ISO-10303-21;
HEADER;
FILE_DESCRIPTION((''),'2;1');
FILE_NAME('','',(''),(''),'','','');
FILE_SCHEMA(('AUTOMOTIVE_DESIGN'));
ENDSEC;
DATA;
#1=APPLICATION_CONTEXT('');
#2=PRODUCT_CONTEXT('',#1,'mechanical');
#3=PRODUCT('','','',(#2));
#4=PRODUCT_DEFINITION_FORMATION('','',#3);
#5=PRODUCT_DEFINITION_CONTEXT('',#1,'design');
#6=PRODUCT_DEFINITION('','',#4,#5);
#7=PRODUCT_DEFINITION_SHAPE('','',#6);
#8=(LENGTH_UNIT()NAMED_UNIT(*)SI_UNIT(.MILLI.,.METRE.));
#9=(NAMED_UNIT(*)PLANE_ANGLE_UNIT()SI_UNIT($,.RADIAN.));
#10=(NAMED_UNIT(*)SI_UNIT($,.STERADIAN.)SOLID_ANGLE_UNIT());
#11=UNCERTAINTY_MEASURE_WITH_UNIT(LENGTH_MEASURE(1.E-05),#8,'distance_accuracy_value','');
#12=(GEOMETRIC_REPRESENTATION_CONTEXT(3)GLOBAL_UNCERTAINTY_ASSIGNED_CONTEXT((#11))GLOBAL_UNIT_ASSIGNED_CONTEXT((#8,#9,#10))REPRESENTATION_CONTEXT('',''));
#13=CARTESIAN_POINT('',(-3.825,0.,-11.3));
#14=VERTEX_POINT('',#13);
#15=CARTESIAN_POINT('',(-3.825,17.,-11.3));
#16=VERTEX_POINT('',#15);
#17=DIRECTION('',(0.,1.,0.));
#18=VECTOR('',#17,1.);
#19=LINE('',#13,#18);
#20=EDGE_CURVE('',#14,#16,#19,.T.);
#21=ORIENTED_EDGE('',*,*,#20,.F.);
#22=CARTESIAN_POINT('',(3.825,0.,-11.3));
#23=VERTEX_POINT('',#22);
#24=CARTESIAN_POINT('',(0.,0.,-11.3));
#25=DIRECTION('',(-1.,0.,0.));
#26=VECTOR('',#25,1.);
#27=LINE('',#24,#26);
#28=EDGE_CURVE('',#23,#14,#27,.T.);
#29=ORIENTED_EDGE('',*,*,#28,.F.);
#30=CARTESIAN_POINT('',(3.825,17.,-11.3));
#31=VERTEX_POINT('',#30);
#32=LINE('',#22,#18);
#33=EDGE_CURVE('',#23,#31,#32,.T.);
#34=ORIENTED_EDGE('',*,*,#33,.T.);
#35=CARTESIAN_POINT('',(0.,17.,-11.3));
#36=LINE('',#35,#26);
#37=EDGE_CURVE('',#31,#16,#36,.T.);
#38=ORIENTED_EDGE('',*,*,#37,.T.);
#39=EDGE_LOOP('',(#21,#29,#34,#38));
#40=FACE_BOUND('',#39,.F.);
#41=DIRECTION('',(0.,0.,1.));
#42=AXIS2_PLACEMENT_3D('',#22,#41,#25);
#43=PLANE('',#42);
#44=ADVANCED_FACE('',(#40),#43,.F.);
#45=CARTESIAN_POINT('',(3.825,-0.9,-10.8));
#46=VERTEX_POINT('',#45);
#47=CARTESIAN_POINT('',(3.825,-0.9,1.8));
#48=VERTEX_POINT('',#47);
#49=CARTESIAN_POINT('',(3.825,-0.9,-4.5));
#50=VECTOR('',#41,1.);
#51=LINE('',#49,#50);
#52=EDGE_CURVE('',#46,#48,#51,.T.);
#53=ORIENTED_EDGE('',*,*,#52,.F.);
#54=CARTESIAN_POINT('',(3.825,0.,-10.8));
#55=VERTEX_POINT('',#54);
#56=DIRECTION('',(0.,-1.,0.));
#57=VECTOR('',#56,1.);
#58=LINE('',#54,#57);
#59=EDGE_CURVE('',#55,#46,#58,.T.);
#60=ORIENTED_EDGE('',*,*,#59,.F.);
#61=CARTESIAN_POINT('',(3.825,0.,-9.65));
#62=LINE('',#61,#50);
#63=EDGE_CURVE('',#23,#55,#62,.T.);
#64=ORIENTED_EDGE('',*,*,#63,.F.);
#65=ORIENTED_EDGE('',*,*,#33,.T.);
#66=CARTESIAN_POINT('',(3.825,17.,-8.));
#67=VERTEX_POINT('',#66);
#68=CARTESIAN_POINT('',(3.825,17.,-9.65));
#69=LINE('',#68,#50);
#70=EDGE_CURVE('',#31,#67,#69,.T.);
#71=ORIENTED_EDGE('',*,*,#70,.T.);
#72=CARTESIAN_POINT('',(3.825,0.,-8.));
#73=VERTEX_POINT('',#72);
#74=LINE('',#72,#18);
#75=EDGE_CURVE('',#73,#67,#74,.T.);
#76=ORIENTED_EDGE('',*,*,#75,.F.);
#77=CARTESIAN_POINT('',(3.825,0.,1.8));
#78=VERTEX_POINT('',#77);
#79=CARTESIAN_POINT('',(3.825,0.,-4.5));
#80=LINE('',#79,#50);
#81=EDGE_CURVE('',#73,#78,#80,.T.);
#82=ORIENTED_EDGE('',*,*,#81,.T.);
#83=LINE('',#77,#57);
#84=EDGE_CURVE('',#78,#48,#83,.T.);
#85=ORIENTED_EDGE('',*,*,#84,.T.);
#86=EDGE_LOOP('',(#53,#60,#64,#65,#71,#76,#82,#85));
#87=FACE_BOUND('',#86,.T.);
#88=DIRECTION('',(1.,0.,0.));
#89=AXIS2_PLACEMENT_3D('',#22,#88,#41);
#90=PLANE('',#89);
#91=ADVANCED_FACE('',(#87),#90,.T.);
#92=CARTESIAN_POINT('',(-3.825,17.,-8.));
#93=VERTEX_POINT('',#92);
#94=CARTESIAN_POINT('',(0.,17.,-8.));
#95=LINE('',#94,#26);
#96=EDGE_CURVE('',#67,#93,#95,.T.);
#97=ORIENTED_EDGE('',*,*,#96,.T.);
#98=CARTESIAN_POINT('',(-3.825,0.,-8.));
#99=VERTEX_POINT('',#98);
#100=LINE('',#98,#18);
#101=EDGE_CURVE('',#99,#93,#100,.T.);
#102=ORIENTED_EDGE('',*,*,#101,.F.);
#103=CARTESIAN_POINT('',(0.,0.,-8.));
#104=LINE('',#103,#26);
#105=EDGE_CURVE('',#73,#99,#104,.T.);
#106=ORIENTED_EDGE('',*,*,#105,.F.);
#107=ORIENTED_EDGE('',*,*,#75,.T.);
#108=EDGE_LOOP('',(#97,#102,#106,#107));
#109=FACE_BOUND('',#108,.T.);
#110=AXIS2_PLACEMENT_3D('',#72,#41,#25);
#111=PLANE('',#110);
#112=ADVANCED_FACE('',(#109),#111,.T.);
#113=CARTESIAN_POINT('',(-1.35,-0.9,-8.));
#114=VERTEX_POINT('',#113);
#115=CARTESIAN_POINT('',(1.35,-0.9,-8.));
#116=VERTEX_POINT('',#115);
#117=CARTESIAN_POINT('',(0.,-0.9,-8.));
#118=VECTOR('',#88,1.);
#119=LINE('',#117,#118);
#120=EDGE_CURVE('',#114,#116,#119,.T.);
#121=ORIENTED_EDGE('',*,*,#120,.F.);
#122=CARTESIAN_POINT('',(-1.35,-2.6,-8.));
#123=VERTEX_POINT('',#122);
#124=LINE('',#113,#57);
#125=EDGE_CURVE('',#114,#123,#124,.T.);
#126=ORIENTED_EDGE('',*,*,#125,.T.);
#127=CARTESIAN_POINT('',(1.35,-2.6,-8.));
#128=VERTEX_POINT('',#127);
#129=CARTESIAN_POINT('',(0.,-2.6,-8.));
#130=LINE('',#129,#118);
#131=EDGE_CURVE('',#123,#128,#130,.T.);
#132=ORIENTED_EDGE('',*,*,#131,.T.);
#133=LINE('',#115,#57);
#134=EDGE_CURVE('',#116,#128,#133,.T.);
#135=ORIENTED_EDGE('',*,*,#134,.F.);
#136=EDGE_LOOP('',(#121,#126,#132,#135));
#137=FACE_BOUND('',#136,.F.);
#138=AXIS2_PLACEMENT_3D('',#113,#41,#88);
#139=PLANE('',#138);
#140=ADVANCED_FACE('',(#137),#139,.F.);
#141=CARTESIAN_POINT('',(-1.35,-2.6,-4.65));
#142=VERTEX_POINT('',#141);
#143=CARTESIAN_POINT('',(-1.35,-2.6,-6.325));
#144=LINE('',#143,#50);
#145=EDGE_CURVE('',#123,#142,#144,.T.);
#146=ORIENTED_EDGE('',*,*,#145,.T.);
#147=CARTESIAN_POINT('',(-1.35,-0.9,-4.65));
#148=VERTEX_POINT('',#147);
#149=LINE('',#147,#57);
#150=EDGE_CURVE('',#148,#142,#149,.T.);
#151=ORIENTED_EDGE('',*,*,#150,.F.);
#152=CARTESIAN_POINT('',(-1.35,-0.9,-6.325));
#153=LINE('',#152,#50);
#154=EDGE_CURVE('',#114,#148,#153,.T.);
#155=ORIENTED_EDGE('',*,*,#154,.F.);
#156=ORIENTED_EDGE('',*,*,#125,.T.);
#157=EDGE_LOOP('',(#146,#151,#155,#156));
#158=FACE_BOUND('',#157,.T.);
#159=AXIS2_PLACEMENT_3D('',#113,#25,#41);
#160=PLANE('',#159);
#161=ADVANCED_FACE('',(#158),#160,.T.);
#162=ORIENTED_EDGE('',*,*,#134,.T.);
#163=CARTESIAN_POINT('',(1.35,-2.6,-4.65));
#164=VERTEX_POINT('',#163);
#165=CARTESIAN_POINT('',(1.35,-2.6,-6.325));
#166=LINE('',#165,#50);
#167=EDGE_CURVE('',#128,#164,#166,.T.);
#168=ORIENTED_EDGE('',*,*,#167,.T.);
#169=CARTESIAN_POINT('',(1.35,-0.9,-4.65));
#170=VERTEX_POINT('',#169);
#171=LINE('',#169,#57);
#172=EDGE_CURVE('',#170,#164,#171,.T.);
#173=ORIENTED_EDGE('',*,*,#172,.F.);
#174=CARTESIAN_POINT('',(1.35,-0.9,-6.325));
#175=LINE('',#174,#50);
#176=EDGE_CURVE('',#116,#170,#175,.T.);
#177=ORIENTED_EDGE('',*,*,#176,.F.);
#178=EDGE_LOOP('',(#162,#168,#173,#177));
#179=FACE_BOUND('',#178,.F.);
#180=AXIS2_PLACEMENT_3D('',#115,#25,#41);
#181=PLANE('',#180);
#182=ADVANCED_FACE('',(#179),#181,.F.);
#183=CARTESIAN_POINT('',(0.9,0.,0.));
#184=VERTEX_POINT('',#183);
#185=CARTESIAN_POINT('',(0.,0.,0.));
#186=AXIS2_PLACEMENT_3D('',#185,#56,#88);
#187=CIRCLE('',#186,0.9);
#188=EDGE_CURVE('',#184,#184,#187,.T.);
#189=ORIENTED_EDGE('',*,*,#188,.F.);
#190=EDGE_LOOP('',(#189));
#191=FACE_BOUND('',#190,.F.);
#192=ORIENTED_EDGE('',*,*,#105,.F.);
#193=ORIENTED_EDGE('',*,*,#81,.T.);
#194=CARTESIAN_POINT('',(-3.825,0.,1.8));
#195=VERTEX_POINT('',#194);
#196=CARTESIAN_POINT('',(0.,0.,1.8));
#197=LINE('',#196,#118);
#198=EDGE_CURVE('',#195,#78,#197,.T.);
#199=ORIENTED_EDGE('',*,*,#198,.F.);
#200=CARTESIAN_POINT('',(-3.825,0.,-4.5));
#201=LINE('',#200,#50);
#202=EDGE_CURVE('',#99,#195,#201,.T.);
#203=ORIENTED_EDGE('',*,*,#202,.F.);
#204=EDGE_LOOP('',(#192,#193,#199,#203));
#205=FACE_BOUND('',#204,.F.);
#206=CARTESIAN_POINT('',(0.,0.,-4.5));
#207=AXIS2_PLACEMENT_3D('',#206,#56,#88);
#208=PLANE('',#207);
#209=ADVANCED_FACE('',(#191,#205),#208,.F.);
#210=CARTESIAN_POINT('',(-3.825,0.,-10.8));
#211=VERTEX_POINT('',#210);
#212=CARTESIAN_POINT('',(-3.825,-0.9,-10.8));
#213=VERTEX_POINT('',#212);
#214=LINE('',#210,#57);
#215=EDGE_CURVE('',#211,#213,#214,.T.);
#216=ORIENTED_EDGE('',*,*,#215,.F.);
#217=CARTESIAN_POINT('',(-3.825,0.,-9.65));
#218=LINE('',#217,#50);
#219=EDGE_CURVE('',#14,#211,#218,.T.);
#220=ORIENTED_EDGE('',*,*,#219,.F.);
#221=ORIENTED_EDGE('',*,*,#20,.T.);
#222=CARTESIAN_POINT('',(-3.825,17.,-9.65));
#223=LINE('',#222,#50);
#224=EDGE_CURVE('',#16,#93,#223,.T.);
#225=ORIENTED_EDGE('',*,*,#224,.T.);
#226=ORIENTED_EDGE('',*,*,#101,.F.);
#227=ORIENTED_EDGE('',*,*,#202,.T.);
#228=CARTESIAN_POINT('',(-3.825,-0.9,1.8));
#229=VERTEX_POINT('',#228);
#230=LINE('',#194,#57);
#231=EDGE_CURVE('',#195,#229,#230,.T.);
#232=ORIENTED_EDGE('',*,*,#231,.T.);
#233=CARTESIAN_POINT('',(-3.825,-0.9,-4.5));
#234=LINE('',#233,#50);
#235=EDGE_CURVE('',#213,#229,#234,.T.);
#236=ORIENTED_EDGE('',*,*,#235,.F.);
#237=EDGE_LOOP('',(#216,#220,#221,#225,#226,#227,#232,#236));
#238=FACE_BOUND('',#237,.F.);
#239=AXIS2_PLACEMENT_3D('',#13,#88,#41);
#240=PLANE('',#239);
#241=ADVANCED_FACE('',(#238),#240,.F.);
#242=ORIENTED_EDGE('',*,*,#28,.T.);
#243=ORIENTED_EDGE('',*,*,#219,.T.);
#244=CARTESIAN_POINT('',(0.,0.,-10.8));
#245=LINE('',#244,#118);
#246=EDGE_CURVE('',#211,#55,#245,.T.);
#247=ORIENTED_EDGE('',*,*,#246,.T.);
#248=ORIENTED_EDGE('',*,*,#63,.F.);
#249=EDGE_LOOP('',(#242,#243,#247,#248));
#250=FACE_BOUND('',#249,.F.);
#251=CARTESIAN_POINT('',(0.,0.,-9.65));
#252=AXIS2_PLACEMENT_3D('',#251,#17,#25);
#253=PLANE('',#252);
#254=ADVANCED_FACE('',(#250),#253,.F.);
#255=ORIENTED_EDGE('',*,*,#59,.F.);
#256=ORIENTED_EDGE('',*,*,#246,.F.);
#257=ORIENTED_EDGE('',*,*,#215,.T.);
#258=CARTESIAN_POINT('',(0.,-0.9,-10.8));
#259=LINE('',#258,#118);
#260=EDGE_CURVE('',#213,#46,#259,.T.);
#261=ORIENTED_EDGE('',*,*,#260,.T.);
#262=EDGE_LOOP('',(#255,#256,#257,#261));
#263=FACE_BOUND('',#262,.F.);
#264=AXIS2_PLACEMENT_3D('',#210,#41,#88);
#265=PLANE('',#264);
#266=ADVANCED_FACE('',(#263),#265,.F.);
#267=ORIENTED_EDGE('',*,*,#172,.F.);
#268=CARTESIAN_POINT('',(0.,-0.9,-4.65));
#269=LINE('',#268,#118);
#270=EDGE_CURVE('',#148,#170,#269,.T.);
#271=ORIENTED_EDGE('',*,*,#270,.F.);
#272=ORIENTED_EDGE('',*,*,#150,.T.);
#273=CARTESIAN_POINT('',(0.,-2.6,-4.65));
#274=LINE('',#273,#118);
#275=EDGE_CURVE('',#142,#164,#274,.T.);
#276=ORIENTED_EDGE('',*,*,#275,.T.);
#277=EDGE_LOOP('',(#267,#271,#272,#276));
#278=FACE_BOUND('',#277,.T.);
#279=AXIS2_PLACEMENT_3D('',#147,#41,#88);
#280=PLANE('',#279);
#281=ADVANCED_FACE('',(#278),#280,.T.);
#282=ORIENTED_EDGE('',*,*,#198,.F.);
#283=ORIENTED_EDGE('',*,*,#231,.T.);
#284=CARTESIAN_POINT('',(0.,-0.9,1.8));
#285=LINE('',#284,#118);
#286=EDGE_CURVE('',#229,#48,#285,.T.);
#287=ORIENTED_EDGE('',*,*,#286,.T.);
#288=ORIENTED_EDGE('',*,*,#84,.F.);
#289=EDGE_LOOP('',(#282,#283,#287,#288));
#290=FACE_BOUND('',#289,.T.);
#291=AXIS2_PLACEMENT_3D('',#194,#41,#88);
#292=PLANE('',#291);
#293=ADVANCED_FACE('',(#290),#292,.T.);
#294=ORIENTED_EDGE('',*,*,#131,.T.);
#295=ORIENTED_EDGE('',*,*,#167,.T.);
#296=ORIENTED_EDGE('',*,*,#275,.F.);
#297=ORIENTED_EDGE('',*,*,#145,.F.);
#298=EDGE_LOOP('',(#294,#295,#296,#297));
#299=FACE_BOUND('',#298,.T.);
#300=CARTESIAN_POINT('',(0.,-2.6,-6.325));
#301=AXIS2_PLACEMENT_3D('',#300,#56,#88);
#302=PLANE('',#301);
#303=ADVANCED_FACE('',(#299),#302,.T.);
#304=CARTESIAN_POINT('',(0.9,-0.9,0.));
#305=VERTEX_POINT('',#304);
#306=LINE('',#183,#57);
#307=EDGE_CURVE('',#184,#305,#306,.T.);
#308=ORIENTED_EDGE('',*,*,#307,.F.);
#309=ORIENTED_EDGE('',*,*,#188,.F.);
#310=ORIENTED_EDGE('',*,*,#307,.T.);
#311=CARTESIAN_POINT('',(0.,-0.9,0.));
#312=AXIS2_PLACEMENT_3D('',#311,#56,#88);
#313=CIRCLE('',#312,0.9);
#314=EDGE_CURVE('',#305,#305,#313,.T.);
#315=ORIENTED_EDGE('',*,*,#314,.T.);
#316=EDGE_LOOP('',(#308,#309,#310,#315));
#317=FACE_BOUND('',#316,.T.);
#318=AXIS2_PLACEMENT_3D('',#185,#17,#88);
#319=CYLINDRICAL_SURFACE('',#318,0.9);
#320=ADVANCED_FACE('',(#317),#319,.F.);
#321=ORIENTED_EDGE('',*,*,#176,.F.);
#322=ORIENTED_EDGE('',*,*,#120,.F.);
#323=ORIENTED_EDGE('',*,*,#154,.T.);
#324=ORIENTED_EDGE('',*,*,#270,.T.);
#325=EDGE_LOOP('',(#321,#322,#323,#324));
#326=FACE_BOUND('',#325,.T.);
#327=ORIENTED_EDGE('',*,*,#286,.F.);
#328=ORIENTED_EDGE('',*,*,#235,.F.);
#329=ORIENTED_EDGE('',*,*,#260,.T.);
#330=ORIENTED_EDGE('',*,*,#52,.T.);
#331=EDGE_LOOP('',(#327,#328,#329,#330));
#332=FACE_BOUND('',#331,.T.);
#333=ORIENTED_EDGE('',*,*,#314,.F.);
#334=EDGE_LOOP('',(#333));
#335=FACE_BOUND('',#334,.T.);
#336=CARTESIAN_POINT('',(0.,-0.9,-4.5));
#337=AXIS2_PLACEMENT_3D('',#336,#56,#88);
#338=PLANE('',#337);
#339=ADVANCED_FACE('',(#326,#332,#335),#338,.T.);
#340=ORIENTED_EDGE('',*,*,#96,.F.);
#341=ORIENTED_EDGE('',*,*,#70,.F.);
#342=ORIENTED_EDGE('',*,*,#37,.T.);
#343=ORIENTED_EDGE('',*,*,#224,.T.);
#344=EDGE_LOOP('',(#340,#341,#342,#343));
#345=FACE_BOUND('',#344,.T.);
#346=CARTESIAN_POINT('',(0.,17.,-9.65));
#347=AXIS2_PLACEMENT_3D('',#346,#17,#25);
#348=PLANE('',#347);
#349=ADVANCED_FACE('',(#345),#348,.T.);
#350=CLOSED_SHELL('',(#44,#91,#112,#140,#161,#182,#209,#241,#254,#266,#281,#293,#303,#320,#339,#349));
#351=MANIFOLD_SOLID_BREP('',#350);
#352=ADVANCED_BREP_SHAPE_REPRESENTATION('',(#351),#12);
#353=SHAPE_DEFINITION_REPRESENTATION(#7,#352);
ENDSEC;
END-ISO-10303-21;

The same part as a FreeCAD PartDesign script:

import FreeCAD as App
import Part
import Sketcher

V = App.Vector

doc = App.newDocument("Part")
body = doc.addObject("PartDesign::Body", "Body")

# Sketch on XZ plane
sketch1 = doc.addObject("Sketcher::SketchObject", "Sketch")
body.addObject(sketch1)
sketch1.AttachmentSupport = (doc.XZ_Plane, [""])
sketch1.MapMode = "FlatFace"
sketch1.addGeometry(Part.LineSegment(V(-3.8, 1.8, 0), V(-3.8, -10.8, 0)), False)
sketch1.addGeometry(Part.LineSegment(V(-3.8, -10.8, 0), V(3.8, -10.8, 0)), False)
sketch1.addGeometry(Part.LineSegment(V(3.8, -10.8, 0), V(3.8, 1.8, 0)), False)
sketch1.addGeometry(Part.LineSegment(V(3.8, 1.8, 0), V(-3.8, 1.8, 0)), False)
sketch1.addGeometry(Part.Circle(V(0, 0, 0), V(0, 0, 1), 0.9), False)
sketch1.addConstraint(Sketcher.Constraint("Coincident", 0, 2, 1, 1))
sketch1.addConstraint(Sketcher.Constraint("Coincident", 1, 2, 2, 1))
sketch1.addConstraint(Sketcher.Constraint("Coincident", 2, 2, 3, 1))
sketch1.addConstraint(Sketcher.Constraint("Coincident", 3, 2, 0, 1))
sketch1.addConstraint(Sketcher.Constraint("Vertical", 0))
sketch1.addConstraint(Sketcher.Constraint("Horizontal", 1))
sketch1.addConstraint(Sketcher.Constraint("Vertical", 2))
sketch1.addConstraint(Sketcher.Constraint("Horizontal", 3))
sketch1.addConstraint(Sketcher.Constraint("Coincident", 4, 3, -1, 1))
sketch1.addConstraint(Sketcher.Constraint("Diameter", 4, 1.8))
sketch1.addConstraint(Sketcher.Constraint("DistanceY", 0, 2, 0, 1, 12.6))
sketch1.addConstraint(Sketcher.Constraint("DistanceX", 1, 1, 1, 2, 7.65))
sketch1.addConstraint(Sketcher.Constraint("DistanceY", 0, 2, -1, 1, 10.8))
sketch1.addConstraint(Sketcher.Constraint("DistanceX", 0, 2, -1, 1, 3.825))
pad1 = doc.addObject("PartDesign::Pad", "Pad")
body.addObject(pad1)
pad1.Profile = sketch1
pad1.Length = 0.9

# Sketch on XZ plane
sketch2 = doc.addObject("Sketcher::SketchObject", "Sketch001")
body.addObject(sketch2)
sketch2.AttachmentSupport = (doc.XZ_Plane, [""])
sketch2.MapMode = "FlatFace"
sketch2.addGeometry(Part.LineSegment(V(3.8, -8, 0), V(3.8, -11.3, 0)), False)
sketch2.addGeometry(Part.LineSegment(V(3.8, -11.3, 0), V(-3.8, -11.3, 0)), False)
sketch2.addGeometry(Part.LineSegment(V(-3.8, -11.3, 0), V(-3.8, -8, 0)), False)
sketch2.addGeometry(Part.LineSegment(V(-3.8, -8, 0), V(3.8, -8, 0)), False)
sketch2.addConstraint(Sketcher.Constraint("Coincident", 0, 2, 1, 1))
sketch2.addConstraint(Sketcher.Constraint("Coincident", 1, 2, 2, 1))
sketch2.addConstraint(Sketcher.Constraint("Coincident", 2, 2, 3, 1))
sketch2.addConstraint(Sketcher.Constraint("Coincident", 3, 2, 0, 1))
sketch2.addConstraint(Sketcher.Constraint("Vertical", 0))
sketch2.addConstraint(Sketcher.Constraint("Horizontal", 1))
sketch2.addConstraint(Sketcher.Constraint("Vertical", 2))
sketch2.addConstraint(Sketcher.Constraint("Horizontal", 3))
sketch2.addConstraint(Sketcher.Constraint("DistanceY", 0, 2, 0, 1, 3.3))
sketch2.addConstraint(Sketcher.Constraint("DistanceY", 2, 2, -1, 1, 8.0))
sketch2.addConstraint(Sketcher.Constraint("DistanceX", 1, 2, 1, 1, 7.65))
sketch2.addConstraint(Sketcher.Constraint("DistanceX", -1, 1, 0, 2, 3.825))
pad2 = doc.addObject("PartDesign::Pad", "Pad001")
body.addObject(pad2)
pad2.Profile = sketch2
pad2.Length = 17
pad2.Reversed = True

# Sketch on XZ plane
sketch3 = doc.addObject("Sketcher::SketchObject", "Sketch002")
body.addObject(sketch3)
sketch3.AttachmentSupport = (doc.XZ_Plane, [""])
sketch3.MapMode = "FlatFace"
sketch3.AttachmentOffset = App.Placement(V(0, 0, 0.9), App.Rotation())
sketch3.addGeometry(Part.LineSegment(V(-1.4, -4.7, 0), V(-1.4, -8, 0)), False)
sketch3.addGeometry(Part.LineSegment(V(-1.4, -8, 0), V(1.4, -8, 0)), False)
sketch3.addGeometry(Part.LineSegment(V(1.4, -8, 0), V(1.4, -4.7, 0)), False)
sketch3.addGeometry(Part.LineSegment(V(1.4, -4.7, 0), V(-1.4, -4.7, 0)), False)
sketch3.addConstraint(Sketcher.Constraint("Coincident", 0, 2, 1, 1))
sketch3.addConstraint(Sketcher.Constraint("Coincident", 1, 2, 2, 1))
sketch3.addConstraint(Sketcher.Constraint("Coincident", 2, 2, 3, 1))
sketch3.addConstraint(Sketcher.Constraint("Coincident", 3, 2, 0, 1))
sketch3.addConstraint(Sketcher.Constraint("Vertical", 0))
sketch3.addConstraint(Sketcher.Constraint("Horizontal", 1))
sketch3.addConstraint(Sketcher.Constraint("Vertical", 2))
sketch3.addConstraint(Sketcher.Constraint("Horizontal", 3))
sketch3.addConstraint(Sketcher.Constraint("DistanceX", 1, 1, 1, 2, 2.7))
sketch3.addConstraint(Sketcher.Constraint("DistanceY", 0, 2, -1, 1, 8.0))
sketch3.addConstraint(Sketcher.Constraint("DistanceY", 0, 2, 0, 1, 3.35))
sketch3.addConstraint(Sketcher.Constraint("DistanceX", 0, 2, -1, 1, 1.35))
pad3 = doc.addObject("PartDesign::Pad", "Pad002")
body.addObject(pad3)
pad3.Profile = sketch3
pad3.Length = 1.7

doc.recompute()
